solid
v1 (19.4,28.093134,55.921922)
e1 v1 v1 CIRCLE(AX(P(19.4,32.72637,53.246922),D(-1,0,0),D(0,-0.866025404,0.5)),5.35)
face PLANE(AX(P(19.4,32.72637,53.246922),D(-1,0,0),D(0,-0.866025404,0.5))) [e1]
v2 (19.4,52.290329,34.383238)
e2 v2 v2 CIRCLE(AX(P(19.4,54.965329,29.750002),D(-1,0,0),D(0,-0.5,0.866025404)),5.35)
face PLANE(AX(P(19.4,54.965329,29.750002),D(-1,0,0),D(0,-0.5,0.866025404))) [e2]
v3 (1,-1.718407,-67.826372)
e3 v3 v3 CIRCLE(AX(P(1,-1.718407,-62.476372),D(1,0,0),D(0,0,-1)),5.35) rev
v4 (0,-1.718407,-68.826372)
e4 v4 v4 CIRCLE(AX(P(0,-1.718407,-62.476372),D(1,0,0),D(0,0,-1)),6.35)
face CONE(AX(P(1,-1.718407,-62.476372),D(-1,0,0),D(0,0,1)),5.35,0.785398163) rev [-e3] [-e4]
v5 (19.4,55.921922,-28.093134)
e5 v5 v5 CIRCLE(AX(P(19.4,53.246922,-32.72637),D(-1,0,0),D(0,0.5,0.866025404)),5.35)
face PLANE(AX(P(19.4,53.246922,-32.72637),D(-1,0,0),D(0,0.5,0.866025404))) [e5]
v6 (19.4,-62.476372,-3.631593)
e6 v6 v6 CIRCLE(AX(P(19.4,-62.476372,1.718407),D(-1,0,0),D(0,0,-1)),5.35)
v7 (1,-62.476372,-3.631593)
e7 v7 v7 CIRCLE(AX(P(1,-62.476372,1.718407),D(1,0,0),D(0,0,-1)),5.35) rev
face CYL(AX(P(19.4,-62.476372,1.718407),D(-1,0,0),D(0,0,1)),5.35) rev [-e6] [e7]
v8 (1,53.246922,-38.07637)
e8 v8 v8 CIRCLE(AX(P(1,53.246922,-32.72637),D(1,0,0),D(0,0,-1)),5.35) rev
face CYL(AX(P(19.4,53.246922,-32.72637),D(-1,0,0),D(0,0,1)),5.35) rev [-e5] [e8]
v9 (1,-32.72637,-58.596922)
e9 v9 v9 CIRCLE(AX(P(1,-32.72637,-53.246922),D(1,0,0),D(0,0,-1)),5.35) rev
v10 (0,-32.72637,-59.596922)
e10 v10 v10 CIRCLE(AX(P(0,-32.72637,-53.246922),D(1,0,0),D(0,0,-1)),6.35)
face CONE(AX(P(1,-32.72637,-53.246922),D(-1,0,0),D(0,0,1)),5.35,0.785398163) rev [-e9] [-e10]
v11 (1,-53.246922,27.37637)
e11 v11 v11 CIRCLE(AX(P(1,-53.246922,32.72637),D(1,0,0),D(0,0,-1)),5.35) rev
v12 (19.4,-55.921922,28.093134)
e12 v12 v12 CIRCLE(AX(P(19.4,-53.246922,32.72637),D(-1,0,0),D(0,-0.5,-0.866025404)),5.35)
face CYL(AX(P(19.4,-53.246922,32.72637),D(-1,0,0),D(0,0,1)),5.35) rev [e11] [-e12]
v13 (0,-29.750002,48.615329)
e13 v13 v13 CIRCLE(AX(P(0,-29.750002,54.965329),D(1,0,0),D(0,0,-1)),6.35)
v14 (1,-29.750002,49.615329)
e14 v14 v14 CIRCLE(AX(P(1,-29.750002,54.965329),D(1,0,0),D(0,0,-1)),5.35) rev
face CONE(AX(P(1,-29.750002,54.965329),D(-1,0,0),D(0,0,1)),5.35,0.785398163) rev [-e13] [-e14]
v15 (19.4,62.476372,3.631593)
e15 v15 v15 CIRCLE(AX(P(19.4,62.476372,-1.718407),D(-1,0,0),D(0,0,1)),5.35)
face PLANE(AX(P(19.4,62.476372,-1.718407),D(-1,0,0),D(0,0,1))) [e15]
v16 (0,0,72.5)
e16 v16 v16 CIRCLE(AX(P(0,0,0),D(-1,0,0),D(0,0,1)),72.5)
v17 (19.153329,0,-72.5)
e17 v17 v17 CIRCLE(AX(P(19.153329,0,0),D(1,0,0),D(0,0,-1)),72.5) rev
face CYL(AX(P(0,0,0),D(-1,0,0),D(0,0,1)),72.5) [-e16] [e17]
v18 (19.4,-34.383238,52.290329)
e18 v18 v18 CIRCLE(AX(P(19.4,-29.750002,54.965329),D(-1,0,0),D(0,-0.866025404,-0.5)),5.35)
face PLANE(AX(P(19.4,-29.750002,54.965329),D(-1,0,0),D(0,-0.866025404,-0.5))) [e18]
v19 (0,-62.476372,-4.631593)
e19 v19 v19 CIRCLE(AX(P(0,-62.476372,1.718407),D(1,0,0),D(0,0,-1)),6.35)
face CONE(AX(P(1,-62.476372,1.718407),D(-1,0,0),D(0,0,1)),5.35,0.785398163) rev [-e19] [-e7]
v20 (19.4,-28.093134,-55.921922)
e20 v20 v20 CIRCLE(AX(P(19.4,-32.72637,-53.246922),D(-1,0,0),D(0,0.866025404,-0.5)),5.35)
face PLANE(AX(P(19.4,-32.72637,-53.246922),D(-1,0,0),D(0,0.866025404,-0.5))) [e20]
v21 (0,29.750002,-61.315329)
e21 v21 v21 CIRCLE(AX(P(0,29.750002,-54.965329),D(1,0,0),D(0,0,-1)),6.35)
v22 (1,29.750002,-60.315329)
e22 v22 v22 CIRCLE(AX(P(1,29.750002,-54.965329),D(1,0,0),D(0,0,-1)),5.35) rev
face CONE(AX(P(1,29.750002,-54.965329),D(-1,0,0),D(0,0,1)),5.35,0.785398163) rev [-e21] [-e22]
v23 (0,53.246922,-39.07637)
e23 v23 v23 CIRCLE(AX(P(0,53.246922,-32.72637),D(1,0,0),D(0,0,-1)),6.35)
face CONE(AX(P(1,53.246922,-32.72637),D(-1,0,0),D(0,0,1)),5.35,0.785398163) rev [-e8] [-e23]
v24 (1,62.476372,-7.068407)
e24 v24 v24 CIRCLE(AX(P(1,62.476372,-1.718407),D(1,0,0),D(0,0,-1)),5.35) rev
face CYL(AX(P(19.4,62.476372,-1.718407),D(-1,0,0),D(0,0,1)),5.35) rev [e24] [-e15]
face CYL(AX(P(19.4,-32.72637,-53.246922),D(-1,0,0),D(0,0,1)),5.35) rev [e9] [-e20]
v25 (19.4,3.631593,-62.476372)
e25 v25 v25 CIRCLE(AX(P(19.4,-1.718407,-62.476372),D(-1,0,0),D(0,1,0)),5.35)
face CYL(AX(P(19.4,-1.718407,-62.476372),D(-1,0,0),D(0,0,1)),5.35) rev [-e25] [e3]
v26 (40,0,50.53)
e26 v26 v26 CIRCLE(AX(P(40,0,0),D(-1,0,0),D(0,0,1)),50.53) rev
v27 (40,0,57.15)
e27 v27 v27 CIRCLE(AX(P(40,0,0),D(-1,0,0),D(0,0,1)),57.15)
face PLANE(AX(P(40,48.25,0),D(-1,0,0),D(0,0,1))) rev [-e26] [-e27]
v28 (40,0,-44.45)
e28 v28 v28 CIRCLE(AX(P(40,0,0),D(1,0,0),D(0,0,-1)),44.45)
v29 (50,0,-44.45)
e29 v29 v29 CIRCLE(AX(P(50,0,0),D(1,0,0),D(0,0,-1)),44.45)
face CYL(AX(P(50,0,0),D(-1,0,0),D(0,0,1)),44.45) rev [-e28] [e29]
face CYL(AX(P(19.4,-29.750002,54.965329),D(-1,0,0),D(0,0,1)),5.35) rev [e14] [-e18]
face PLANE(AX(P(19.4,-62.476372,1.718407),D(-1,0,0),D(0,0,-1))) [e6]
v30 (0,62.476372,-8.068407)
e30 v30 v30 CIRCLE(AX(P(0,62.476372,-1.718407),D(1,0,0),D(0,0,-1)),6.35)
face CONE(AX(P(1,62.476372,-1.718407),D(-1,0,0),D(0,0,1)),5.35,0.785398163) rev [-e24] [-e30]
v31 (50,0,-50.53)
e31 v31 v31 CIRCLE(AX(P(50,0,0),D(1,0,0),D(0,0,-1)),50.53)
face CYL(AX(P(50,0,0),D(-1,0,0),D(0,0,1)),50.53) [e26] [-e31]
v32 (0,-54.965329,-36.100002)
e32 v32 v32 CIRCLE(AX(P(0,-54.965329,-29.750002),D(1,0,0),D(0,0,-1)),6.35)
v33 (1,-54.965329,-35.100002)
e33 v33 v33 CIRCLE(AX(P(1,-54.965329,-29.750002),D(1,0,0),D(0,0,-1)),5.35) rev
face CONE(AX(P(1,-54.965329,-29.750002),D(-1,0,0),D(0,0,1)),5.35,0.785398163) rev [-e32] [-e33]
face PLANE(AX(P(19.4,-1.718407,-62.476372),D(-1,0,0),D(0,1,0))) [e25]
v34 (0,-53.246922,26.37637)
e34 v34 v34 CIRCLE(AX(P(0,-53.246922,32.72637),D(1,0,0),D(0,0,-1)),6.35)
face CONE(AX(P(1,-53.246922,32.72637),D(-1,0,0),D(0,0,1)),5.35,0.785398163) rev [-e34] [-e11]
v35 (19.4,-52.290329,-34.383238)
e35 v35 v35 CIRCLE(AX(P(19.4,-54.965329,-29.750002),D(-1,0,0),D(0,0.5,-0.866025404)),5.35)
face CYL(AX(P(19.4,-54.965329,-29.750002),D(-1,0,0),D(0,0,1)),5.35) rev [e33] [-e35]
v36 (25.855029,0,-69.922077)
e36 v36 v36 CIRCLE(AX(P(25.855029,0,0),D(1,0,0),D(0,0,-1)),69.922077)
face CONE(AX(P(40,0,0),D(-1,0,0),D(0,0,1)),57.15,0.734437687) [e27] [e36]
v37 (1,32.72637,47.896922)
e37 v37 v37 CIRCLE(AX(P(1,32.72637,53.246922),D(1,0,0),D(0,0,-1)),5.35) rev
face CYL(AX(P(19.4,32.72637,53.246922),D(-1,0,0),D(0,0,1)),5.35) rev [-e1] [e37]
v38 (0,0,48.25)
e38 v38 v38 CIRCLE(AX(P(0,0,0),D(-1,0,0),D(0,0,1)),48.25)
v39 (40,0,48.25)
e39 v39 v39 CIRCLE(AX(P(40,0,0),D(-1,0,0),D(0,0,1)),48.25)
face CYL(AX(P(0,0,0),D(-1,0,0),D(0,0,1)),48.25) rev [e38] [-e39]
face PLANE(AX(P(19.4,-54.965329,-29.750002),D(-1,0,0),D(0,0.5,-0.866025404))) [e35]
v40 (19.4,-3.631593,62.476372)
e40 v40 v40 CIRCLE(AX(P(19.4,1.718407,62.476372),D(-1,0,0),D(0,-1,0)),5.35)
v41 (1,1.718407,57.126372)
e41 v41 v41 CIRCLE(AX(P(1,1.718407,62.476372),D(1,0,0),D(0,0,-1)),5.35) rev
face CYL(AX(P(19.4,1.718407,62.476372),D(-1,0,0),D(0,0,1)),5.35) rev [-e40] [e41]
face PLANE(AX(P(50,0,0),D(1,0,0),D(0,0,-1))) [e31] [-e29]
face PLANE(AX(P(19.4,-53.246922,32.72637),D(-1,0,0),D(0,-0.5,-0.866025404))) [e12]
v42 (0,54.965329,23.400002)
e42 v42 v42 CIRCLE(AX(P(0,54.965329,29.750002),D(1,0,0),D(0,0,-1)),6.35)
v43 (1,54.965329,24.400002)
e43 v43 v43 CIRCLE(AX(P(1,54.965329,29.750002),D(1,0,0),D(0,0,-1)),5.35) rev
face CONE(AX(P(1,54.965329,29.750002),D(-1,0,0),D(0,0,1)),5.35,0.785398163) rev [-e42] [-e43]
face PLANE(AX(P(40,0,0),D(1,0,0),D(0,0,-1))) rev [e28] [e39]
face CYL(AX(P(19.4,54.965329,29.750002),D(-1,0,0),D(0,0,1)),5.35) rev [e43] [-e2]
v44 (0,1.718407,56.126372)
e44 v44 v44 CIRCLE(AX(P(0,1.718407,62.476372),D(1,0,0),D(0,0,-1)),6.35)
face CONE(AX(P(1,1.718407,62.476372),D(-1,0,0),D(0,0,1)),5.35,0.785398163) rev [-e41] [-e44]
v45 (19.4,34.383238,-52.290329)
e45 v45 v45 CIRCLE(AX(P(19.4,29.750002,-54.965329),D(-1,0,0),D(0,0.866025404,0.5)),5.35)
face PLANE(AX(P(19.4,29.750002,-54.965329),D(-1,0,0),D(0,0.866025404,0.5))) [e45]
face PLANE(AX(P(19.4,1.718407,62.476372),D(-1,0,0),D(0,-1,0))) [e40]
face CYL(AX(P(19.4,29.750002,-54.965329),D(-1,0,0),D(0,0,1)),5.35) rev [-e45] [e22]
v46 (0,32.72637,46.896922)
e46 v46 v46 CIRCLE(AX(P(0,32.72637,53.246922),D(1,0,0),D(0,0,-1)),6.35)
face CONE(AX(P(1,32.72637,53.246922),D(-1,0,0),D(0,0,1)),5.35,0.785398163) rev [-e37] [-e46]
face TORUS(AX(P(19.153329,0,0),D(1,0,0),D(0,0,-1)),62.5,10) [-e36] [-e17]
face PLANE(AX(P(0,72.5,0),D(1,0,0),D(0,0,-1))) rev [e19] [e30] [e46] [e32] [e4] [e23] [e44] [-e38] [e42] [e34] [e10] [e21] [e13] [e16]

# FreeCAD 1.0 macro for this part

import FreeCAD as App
import Part
import Sketcher


def edges_at(feature, points):
    """Names of the edges that pass closest to the given points."""
    edges = feature.Shape.Edges
    near = lambda p: min(range(len(edges)), key=lambda i: edges[i].distToShape(Part.Vertex(*p))[0])
    return sorted({f"Edge{near(p) + 1}" for p in points})

doc = App.newDocument("Part")
params = doc.addObject("Spreadsheet::Sheet", "Params")
for row, (alias, value) in enumerate([
    ("sketch1_width", "40 mm"),
    ("sketch1_width2", "23 mm"),
    ("sketch1_height", "8.9 mm"),
    ("sketch1_height2", "24.25 mm"),
    ("revolution_angle", "360 deg"),
    ("fillet_radius", "10 mm"),
    ("sketch2_diameter", "88.9 mm"),
    ("sketch2_diameter2", "101.06 mm"),
    ("pad1_length", "10 mm"),
    ("sketch3_diameter", "10.7 mm"),
    ("pocket1_length", "19.4 mm"),
    ("chamfer_size", "1 mm"),
    ("chamfer2_size", "1 mm"),
], start=1):
    params.set(f"A{row}", alias)
    params.set(f"B{row}", "=" + value)
    params.setAlias(f"B{row}", alias)

body = doc.addObject("PartDesign::Body", "Body")

sketch1 = doc.addObject("Sketcher::SketchObject", "Sketch")
body.addObject(sketch1)
sketch1.AttachmentSupport = (doc.XY_Plane, [""])
sketch1.MapMode = "FlatFace"
sketch1.addGeometry(Part.LineSegment(App.Vector(0, 48.25, 0), App.Vector(40, 48.25, 0)), False)
sketch1.addGeometry(Part.LineSegment(App.Vector(40, 48.25, 0), App.Vector(40, 57.15, 0)), False)
sketch1.addGeometry(Part.LineSegment(App.Vector(40, 57.15, 0), App.Vector(23, 72.5, 0)), False)
sketch1.addGeometry(Part.LineSegment(App.Vector(23, 72.5, 0), App.Vector(0, 72.5, 0)), False)
sketch1.addGeometry(Part.LineSegment(App.Vector(0, 72.5, 0), App.Vector(0, 48.25, 0)), False)
sketch1.addConstraint(Sketcher.Constraint("Coincident", 0, 2, 1, 1))
sketch1.addConstraint(Sketcher.Constraint("Coincident", 1, 2, 2, 1))
sketch1.addConstraint(Sketcher.Constraint("Coincident", 2, 2, 3, 1))
sketch1.addConstraint(Sketcher.Constraint("Coincident", 3, 2, 4, 1))
sketch1.addConstraint(Sketcher.Constraint("Coincident", 4, 2, 0, 1))
sketch1.addConstraint(Sketcher.Constraint("Horizontal", 0))
sketch1.addConstraint(Sketcher.Constraint("Vertical", 1))
sketch1.addConstraint(Sketcher.Constraint("Horizontal", 3))
sketch1.addConstraint(Sketcher.Constraint("Vertical", 4))
sketch1.addConstraint(Sketcher.Constraint("PointOnObject", 3, 2, -2))
sketch1.addConstraint(Sketcher.Constraint("DistanceX", 0, 1, 0, 2, 40.0))
sketch1.addConstraint(Sketcher.Constraint("DistanceX", 3, 2, 3, 1, 23.0))
sketch1.addConstraint(Sketcher.Constraint("DistanceY", 1, 1, 1, 2, 8.9))
sketch1.addConstraint(Sketcher.Constraint("DistanceY", 4, 2, 4, 1, 24.25))
sketch1.addConstraint(Sketcher.Constraint("DistanceY", -1, 1, 2, 2, 72.5))
sketch1.setExpression("Constraints[10]", "Params.sketch1_width")
sketch1.setExpression("Constraints[11]", "Params.sketch1_width2")
sketch1.setExpression("Constraints[12]", "Params.sketch1_height")
sketch1.setExpression("Constraints[13]", "Params.sketch1_height2")
revolution = doc.addObject("PartDesign::Revolution", "Revolution")
body.addObject(revolution)
revolution.Profile = sketch1
revolution.ReferenceAxis = (sketch1, ["H_Axis"])
revolution.setExpression("Angle", "Params.revolution_angle")
doc.recompute()

fillet = doc.addObject("PartDesign::Fillet", "Fillet")
body.addObject(fillet)
fillet.Base = (revolution, edges_at(revolution, [(23, -72.5, 0)]))
fillet.setExpression("Radius", "Params.fillet_radius")

sketch2 = doc.addObject("Sketcher::SketchObject", "Sketch001")
body.addObject(sketch2)
sketch2.AttachmentSupport = (doc.YZ_Plane, [""])
sketch2.MapMode = "FlatFace"
sketch2.AttachmentOffset = App.Placement(App.Vector(0, 0, 40), App.Rotation())
sketch2.addGeometry(Part.Circle(App.Vector(0, 0, 0), App.Vector(0, 0, 1), 50.53), False)
sketch2.addGeometry(Part.Circle(App.Vector(0, 0, 0), App.Vector(0, 0, 1), 44.45), False)
sketch2.addConstraint(Sketcher.Constraint("Coincident", 0, 3, -1, 1))
sketch2.addConstraint(Sketcher.Constraint("Coincident", 1, 3, -1, 1))
sketch2.addConstraint(Sketcher.Constraint("Diameter", 1, 88.9))
sketch2.addConstraint(Sketcher.Constraint("Diameter", 0, 101.06))
sketch2.setExpression("Constraints[2]", "Params.sketch2_diameter")
sketch2.setExpression("Constraints[3]", "Params.sketch2_diameter2")
pad1 = doc.addObject("PartDesign::Pad", "Pad")
body.addObject(pad1)
pad1.Profile = sketch2
pad1.setExpression("Length", "Params.pad1_length")

sketch3 = doc.addObject("Sketcher::SketchObject", "Sketch002")
body.addObject(sketch3)
sketch3.AttachmentSupport = (doc.YZ_Plane, [""])
sketch3.MapMode = "FlatFace"
sketch3.addGeometry(Part.Circle(App.Vector(62.476372, -1.718407, 0), App.Vector(0, 0, 1), 5.35), False)
sketch3.addConstraint(Sketcher.Constraint("Diameter", 0, 10.7))
sketch3.addConstraint(Sketcher.Constraint("DistanceX", -1, 1, 0, 3, 62.476372))
sketch3.addConstraint(Sketcher.Constraint("DistanceY", 0, 3, -1, 1, 1.718407))
sketch3.setExpression("Constraints[0]", "Params.sketch3_diameter")
pocket1 = doc.addObject("PartDesign::Pocket", "Pocket")
body.addObject(pocket1)
pocket1.Profile = sketch3
pocket1.setExpression("Length", "Params.pocket1_length")
pocket1.Reversed = True
doc.recompute()

chamfer = doc.addObject("PartDesign::Chamfer", "Chamfer")
body.addObject(chamfer)
chamfer.Base = (pocket1, edges_at(pocket1, [(0, 62.476, -7.068)]))
chamfer.setExpression("Size", "Params.chamfer_size")
doc.recompute()

polarpattern = doc.addObject("PartDesign::PolarPattern", "PolarPattern")
body.addObject(polarpattern)
polarpattern.Originals = [pocket1]
polarpattern.Axis = (doc.X_Axis, [""])
polarpattern.Angle = 360
polarpattern.Occurrences = 12
body.Tip = polarpattern
doc.recompute()

chamfer2 = doc.addObject("PartDesign::Chamfer", "Chamfer001")
body.addObject(chamfer2)
chamfer2.Base = (polarpattern, edges_at(polarpattern, [
    (0, 57.64, 25.117),
    (0, 37.36, 50.572),
    (0, 7.068, 62.476),
    (0, -25.117, 57.64),
    (0, -50.572, 37.36),
    (0, -62.476, 7.068),
    (0, -57.64, -25.117),
    (0, -37.36, -50.572),
    (0, -7.068, -62.476),
    (0, 25.117, -57.64),
    (0, 50.572, -37.36),
]))
chamfer2.setExpression("Size", "Params.chamfer2_size")

doc.recompute()
